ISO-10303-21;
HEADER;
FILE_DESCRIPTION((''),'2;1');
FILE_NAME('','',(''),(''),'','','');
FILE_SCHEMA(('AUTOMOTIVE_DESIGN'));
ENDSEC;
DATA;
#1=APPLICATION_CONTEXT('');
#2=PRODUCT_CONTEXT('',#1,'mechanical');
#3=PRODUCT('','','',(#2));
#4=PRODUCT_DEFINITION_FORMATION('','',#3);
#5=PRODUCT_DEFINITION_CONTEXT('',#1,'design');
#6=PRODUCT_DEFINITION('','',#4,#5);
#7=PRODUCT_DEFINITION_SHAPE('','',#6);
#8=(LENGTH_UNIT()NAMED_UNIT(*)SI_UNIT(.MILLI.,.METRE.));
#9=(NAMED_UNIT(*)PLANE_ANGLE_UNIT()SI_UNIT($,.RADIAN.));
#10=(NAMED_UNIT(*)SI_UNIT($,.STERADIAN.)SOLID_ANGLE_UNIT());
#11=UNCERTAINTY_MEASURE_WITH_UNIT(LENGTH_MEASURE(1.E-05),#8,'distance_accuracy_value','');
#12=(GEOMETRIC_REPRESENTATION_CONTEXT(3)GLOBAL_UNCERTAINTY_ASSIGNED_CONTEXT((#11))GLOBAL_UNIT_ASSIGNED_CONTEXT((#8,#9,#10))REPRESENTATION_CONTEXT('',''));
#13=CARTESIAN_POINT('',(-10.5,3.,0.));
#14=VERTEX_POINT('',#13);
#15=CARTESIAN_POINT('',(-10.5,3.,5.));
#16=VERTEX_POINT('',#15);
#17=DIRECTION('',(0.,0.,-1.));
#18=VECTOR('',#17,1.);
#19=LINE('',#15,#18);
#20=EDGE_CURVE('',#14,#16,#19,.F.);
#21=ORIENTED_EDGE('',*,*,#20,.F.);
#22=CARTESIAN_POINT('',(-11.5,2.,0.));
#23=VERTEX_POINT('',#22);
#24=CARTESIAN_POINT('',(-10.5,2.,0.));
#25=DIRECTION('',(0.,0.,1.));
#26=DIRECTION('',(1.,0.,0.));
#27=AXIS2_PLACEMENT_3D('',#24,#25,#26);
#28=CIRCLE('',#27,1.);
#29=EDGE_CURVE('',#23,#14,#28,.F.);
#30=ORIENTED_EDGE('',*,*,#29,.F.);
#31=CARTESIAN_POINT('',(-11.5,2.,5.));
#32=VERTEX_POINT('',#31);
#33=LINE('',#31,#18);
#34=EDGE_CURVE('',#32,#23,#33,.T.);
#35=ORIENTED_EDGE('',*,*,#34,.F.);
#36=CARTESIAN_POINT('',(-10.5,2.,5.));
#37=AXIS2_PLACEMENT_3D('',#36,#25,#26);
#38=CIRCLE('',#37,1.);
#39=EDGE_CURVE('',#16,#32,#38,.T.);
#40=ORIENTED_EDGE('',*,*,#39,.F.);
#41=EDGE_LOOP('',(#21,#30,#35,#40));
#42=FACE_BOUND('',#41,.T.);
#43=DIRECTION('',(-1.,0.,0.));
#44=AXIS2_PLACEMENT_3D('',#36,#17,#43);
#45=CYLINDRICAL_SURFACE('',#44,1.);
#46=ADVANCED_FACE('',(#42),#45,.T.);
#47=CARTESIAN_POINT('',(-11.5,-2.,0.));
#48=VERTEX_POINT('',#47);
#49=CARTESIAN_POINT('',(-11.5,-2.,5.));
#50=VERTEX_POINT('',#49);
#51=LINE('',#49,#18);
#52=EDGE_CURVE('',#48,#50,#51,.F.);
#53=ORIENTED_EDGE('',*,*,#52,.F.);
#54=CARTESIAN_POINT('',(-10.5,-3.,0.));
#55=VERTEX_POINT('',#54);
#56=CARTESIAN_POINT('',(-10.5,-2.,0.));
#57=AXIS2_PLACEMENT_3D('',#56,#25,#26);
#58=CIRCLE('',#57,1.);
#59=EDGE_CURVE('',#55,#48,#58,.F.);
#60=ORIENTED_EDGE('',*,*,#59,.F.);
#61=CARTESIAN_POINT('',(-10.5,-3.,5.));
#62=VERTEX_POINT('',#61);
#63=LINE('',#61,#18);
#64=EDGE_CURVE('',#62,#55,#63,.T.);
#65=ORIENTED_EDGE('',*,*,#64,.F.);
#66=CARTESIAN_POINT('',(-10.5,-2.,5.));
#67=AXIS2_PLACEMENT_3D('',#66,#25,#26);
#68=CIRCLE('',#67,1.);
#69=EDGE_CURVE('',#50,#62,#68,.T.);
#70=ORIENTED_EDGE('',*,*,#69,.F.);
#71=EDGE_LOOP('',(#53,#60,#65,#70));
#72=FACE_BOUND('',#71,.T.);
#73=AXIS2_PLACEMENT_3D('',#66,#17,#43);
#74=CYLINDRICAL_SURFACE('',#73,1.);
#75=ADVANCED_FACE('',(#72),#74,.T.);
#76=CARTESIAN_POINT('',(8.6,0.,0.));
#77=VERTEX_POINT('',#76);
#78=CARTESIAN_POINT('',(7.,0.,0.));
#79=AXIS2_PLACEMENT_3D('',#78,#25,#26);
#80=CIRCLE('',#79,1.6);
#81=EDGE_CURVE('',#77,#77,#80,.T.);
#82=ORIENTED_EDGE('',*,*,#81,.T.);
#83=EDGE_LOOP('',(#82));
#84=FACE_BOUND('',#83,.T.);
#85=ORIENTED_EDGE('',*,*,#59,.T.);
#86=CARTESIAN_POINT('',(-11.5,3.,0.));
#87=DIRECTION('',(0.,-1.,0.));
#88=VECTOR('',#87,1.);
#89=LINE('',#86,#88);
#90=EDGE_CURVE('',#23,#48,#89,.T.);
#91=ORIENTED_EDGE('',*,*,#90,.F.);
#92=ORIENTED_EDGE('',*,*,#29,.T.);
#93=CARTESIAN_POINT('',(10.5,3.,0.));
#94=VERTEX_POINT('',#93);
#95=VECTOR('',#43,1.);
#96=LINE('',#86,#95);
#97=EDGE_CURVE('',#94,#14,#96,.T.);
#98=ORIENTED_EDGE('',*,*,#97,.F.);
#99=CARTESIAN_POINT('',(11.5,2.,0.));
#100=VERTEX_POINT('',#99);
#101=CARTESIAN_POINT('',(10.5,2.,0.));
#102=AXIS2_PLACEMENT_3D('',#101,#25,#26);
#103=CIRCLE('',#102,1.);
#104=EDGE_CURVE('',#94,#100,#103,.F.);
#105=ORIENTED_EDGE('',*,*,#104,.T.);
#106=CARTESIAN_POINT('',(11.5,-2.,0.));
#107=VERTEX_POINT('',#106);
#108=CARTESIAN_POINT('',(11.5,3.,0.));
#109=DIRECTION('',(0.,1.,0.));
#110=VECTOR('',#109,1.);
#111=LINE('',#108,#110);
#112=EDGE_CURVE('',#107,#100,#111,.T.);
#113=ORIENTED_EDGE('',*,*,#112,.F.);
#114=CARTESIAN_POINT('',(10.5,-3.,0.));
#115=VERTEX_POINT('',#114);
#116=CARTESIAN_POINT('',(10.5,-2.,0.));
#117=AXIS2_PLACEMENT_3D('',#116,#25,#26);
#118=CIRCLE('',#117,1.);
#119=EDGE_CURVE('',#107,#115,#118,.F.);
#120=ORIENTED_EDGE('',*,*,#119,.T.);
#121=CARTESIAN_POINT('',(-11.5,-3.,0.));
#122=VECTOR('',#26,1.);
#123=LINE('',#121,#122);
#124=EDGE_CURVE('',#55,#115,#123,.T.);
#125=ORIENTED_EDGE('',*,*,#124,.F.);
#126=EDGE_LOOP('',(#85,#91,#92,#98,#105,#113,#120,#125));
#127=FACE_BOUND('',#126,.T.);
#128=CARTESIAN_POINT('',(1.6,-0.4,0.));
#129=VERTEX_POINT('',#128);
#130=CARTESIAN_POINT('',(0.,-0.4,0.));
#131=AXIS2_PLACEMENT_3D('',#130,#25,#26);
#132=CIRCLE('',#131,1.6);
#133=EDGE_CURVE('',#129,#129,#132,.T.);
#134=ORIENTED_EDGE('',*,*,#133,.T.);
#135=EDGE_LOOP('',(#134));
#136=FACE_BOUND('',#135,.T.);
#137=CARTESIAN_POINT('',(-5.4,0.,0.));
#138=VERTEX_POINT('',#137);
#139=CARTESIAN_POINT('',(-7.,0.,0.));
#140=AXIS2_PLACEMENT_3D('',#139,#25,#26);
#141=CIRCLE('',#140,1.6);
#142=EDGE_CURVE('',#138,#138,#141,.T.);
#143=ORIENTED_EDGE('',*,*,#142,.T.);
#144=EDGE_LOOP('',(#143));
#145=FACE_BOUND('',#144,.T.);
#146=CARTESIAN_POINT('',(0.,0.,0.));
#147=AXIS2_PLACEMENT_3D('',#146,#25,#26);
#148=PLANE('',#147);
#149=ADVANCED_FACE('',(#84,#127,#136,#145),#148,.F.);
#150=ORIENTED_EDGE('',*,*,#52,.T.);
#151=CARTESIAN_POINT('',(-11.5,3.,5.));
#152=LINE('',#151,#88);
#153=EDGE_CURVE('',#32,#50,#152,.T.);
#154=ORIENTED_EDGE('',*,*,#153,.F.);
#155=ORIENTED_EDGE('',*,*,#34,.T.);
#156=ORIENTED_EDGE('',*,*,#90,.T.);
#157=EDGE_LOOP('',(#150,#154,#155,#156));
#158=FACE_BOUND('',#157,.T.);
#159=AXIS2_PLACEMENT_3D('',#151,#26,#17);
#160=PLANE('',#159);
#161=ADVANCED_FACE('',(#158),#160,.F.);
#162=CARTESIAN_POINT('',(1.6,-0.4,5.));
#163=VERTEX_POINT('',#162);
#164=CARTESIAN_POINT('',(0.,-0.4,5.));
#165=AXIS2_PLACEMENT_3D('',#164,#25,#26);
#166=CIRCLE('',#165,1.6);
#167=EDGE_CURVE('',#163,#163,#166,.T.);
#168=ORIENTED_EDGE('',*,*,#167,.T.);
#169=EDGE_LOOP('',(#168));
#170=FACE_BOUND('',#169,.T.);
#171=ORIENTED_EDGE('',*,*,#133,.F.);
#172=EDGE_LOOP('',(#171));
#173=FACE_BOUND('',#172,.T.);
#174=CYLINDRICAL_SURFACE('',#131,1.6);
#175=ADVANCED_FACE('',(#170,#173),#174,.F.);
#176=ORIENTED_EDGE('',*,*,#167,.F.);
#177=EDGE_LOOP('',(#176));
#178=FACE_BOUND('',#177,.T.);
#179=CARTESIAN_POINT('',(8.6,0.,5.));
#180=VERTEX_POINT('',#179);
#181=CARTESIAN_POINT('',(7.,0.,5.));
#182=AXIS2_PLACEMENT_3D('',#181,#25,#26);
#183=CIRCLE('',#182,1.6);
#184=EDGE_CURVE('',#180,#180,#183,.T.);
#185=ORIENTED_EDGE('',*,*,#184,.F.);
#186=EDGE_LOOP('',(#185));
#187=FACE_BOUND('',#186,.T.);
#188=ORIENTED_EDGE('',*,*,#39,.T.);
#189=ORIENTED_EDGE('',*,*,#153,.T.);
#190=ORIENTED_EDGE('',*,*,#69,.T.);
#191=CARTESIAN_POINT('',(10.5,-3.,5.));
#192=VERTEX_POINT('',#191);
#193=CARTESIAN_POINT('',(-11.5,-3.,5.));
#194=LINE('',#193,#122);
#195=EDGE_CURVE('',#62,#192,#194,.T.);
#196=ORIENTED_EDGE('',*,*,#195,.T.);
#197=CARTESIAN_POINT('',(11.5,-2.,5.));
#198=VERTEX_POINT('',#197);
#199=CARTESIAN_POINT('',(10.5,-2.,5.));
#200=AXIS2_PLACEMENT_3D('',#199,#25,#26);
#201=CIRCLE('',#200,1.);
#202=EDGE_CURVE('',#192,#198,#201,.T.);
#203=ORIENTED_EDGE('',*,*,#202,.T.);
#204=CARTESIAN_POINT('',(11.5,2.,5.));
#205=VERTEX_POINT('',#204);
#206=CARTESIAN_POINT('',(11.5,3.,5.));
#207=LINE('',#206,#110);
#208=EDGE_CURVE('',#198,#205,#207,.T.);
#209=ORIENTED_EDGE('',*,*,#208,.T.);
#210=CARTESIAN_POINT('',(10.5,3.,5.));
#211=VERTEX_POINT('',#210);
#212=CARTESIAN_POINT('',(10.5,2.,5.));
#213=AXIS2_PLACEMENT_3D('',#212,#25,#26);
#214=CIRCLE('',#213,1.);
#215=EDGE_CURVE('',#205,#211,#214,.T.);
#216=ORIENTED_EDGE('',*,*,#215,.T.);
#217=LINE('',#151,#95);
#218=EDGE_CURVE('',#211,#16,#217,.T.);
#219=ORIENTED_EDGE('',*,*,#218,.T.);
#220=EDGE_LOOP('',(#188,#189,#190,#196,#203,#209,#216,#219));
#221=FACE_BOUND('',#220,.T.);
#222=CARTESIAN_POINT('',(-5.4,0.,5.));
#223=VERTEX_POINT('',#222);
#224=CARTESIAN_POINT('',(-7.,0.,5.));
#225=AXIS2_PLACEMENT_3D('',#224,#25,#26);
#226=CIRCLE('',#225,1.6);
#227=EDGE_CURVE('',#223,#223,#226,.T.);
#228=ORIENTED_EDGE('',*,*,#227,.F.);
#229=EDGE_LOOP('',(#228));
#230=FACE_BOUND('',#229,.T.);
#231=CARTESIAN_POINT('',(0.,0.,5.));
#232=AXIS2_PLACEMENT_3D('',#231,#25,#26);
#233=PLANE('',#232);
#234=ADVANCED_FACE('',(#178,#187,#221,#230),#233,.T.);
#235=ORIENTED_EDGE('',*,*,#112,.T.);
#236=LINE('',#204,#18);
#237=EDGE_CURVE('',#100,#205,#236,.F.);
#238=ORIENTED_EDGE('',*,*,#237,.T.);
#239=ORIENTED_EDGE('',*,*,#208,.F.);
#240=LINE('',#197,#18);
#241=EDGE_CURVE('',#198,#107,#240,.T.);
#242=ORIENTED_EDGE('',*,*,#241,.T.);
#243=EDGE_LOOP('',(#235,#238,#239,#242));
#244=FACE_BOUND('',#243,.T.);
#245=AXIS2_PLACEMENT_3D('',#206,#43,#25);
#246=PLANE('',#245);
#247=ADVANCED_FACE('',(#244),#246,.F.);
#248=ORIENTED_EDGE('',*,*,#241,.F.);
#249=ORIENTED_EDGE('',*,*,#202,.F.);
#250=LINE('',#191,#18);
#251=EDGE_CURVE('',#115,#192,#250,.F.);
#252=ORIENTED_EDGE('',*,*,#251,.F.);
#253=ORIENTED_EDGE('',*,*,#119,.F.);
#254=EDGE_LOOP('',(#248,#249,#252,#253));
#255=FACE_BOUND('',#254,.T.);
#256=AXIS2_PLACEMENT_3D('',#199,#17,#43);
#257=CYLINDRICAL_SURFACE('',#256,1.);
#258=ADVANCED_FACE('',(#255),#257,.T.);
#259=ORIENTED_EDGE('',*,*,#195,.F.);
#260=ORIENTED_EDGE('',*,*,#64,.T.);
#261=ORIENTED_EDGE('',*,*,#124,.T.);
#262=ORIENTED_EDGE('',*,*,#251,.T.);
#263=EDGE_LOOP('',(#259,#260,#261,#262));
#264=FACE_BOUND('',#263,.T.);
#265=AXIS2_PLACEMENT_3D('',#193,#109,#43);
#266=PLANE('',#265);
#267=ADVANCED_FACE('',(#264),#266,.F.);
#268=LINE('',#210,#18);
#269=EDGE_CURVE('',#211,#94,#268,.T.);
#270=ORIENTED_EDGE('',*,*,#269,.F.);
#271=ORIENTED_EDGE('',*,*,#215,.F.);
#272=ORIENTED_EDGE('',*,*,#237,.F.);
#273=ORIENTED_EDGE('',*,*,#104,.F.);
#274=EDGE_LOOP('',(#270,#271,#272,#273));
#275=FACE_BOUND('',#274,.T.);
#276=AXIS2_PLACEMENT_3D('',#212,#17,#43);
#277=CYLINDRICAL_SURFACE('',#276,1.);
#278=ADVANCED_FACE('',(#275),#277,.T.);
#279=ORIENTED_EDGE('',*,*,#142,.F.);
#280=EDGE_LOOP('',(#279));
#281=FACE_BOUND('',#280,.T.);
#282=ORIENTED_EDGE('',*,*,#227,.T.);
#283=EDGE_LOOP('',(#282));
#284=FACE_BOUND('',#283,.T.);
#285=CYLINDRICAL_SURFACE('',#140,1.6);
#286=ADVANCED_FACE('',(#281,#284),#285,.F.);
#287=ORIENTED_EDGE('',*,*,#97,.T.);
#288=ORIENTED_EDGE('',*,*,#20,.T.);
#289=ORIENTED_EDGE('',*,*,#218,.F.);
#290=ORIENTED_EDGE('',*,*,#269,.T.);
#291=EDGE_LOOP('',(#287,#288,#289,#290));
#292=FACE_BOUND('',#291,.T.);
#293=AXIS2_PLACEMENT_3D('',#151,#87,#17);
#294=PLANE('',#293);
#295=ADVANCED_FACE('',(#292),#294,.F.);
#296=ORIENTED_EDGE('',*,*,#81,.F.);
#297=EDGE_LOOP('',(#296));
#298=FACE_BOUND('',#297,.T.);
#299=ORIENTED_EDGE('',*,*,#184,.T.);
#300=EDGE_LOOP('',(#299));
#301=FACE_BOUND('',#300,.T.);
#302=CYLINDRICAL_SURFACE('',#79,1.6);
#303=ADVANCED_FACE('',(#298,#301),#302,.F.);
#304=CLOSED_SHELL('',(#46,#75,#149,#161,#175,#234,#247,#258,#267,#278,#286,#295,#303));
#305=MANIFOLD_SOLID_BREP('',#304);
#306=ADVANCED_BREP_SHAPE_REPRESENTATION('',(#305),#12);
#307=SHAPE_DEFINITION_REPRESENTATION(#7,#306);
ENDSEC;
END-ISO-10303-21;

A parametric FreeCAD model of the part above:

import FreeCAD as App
import Part
import Sketcher
from FreeCAD import Vector
Q = App.Units.Quantity


def edges_at(feature, points):
    """Names of the edges that pass closest to the given points."""
    edges = feature.Shape.Edges
    near = lambda p: min(range(len(edges)), key=lambda i: edges[i].distToShape(Part.Vertex(*p))[0])
    return sorted({f"Edge{near(p) + 1}" for p in points})

doc = App.newDocument("Part")
body = doc.addObject("PartDesign::Body", "Body")

# Sketch on XY plane
sketch1 = doc.addObject("Sketcher::SketchObject", "Sketch")
body.addObject(sketch1)
sketch1.AttachmentSupport = (doc.XY_Plane, [""])
sketch1.MapMode = "FlatFace"
sketch1.addGeometry([
    Part.LineSegment(Vector(-12, 3, 0), Vector(-12, -3, 0)),
    Part.LineSegment(Vector(-12, -3, 0), Vector(12, -3, 0)),
    Part.LineSegment(Vector(12, -3, 0), Vector(12, 3, 0)),
    Part.LineSegment(Vector(12, 3, 0), Vector(-12, 3, 0)),
], False)
sketch1.addConstraint([
    Sketcher.Constraint("Coincident", 0, 2, 1, 1),
    Sketcher.Constraint("Coincident", 1, 2, 2, 1),
    Sketcher.Constraint("Coincident", 2, 2, 3, 1),
    Sketcher.Constraint("Coincident", 3, 2, 0, 1),
    Sketcher.Constraint("Vertical", 0),
    Sketcher.Constraint("Horizontal", 1),
    Sketcher.Constraint("Vertical", 2),
    Sketcher.Constraint("Horizontal", 3),
    Sketcher.Constraint("Symmetric", 0, 2, 2, 2, -1, 1),
    Sketcher.Constraint("DistanceX", 1, 1, 1, 2, Q("23 mm")),
    Sketcher.Constraint("DistanceY", 0, 2, 0, 1, Q("6 mm")),
])
pad1 = doc.addObject("PartDesign::Pad", "Pad")
body.addObject(pad1)
pad1.Profile = sketch1
pad1.Length = 5

# Sketch on XY plane
sketch2 = doc.addObject("Sketcher::SketchObject", "Sketch001")
body.addObject(sketch2)
sketch2.AttachmentSupport = (doc.XY_Plane, [""])
sketch2.MapMode = "FlatFace"
sketch2.AttachmentOffset = App.Placement(Vector(0, 0, 5), App.Rotation())
sketch2.addGeometry([
    Part.Circle(Vector(-7, 0, 0), Vector(0, 0, 1), 1.6),
    Part.Circle(Vector(7, 0, 0), Vector(0, 0, 1), 1.6),
    Part.Circle(Vector(0, -0.4, 0), Vector(0, 0, 1), 1.6),
], False)
sketch2.addConstraint([
    Sketcher.Constraint("Equal", 0, 1),
    Sketcher.Constraint("Equal", 1, 2),
    Sketcher.Constraint("Symmetric", 0, 3, 1, 3, -1, 1),
    Sketcher.Constraint("PointOnObject", 0, 3, -1),
    Sketcher.Constraint("PointOnObject", 2, 3, -2),
    Sketcher.Constraint("Diameter", 0, Q("3.2 mm")),
    Sketcher.Constraint("DistanceX", 0, 3, -1, 1, Q("7 mm")),
    Sketcher.Constraint("DistanceY", 2, 3, -1, 1, Q("0.4 mm")),
])
pocket1 = doc.addObject("PartDesign::Pocket", "Pocket")
body.addObject(pocket1)
pocket1.Profile = sketch2
pocket1.Length = 5
doc.recompute()

fillet = doc.addObject("PartDesign::Fillet", "Fillet")
body.addObject(fillet)
fillet.Base = (pocket1, edges_at(pocket1, [
    (11.5, -3, 2.5),
    (-11.5, -3, 2.5),
    (-11.5, 3, 2.5),
    (11.5, 3, 2.5),
]))
fillet.Radius = 1

doc.recompute()
